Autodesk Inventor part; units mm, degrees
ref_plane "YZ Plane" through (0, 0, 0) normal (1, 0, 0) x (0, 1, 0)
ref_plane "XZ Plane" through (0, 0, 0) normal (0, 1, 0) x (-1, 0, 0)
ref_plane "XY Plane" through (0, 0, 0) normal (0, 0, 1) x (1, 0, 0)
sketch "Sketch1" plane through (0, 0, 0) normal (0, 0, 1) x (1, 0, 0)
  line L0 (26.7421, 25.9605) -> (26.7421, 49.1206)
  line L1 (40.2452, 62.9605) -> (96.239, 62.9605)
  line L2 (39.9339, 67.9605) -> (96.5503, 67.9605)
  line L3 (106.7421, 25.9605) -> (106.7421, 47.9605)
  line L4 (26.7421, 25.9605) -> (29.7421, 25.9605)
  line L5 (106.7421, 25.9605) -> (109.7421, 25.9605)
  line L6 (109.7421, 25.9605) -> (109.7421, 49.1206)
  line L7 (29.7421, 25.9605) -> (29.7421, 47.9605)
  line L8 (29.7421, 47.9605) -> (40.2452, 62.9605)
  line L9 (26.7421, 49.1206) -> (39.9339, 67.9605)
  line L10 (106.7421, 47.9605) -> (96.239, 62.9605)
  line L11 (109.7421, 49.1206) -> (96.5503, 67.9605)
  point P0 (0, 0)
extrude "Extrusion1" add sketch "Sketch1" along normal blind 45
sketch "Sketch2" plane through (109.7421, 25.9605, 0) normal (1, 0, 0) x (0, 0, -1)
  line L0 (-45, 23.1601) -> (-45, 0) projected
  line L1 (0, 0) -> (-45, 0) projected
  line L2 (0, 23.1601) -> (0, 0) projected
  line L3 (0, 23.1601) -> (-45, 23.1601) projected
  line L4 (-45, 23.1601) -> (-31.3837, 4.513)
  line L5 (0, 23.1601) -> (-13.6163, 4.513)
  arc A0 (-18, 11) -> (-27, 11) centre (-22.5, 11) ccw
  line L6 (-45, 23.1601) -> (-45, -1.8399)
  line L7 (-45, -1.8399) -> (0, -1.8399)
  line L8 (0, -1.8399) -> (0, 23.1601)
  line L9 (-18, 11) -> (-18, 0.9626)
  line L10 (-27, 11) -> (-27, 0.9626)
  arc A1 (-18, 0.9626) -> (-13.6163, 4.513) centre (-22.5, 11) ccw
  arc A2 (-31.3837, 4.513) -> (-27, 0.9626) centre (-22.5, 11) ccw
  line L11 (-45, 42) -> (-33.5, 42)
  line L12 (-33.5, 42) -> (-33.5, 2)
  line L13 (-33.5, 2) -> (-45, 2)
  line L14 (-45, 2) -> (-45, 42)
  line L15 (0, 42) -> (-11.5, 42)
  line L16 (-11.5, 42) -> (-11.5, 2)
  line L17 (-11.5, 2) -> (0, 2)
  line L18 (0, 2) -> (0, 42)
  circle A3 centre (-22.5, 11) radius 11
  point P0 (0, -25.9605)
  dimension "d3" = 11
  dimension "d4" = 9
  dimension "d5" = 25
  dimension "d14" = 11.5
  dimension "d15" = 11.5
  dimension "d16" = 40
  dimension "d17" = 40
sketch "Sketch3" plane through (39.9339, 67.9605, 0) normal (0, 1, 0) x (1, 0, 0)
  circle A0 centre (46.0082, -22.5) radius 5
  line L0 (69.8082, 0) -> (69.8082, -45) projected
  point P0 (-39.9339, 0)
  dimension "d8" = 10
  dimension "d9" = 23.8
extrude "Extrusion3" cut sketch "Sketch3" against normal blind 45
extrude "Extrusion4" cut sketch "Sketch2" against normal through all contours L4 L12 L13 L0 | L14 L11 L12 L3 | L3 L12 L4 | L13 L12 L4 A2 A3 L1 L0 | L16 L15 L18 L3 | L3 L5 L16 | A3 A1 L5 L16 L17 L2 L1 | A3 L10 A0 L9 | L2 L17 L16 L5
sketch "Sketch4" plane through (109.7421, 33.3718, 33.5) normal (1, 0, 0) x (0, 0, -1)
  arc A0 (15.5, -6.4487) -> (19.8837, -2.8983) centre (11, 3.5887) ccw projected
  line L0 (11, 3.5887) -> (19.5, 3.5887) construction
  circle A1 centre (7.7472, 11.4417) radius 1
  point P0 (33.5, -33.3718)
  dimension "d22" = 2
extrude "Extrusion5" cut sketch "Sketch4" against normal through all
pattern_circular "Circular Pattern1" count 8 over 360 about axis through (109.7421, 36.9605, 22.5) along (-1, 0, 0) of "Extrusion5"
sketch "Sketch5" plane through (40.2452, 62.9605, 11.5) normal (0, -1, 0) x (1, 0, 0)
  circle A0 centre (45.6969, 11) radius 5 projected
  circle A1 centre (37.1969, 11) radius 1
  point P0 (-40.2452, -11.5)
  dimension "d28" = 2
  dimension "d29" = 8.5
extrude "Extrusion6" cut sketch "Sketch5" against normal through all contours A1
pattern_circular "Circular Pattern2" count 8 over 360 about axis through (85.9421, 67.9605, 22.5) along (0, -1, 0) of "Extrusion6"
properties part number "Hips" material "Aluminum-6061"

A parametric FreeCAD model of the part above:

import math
import FreeCAD as App
import Part
import Sketcher
from FreeCAD import Vector
Q = App.Units.Quantity


def add_polygon(sketch, points):
    """Adds a closed chain of lines whose ends are joined by coincident constraints."""
    first, n = sketch.GeometryCount, len(points)
    for a, b in zip(points, points[1:] + points[:1]):
        sketch.addGeometry(Part.LineSegment(App.Vector(*a, 0), App.Vector(*b, 0)), False)
    for i in range(n):
        sketch.addConstraint(Sketcher.Constraint("Coincident", first + i, 2, first + (i + 1) % n, 1))

doc = App.newDocument("Part")
body = doc.addObject("PartDesign::Body", "Body")

sketch1 = body.newObject("Sketcher::SketchObject", "Sketch")
sketch1.AttachmentSupport = (doc.getObject("XY_Plane"), [""])
sketch1.MapMode = "FlatFace"
add_polygon(sketch1, [(26.7, 49.1), (26.7, 26), (29.7, 26), (29.7, 48), (40.2, 63), (96.2, 63), (106.7, 48), (106.7, 26), (109.7, 26), (109.7, 49.1), (96.6, 68), (39.9, 68)])
sketch1.addConstraint(Sketcher.Constraint("Vertical", 0))
sketch1.addConstraint(Sketcher.Constraint("Horizontal", 1))
sketch1.addConstraint(Sketcher.Constraint("Vertical", 2))
sketch1.addConstraint(Sketcher.Constraint("Horizontal", 4))
sketch1.addConstraint(Sketcher.Constraint("Vertical", 6))
sketch1.addConstraint(Sketcher.Constraint("Horizontal", 7))
sketch1.addConstraint(Sketcher.Constraint("Vertical", 8))
sketch1.addConstraint(Sketcher.Constraint("Horizontal", 10))
sketch1.addConstraint(Sketcher.Constraint("Parallel", 5, 9))
sketch1.addConstraint(Sketcher.Constraint("Parallel", 3, 11))
sketch1.addConstraint(Sketcher.Constraint("Horizontal", 2, 2, 5, 2))
sketch1.addConstraint(Sketcher.Constraint("Horizontal", 1, 2, 6, 2))
sketch1.addConstraint(Sketcher.Constraint("Horizontal", 8, 2, 11, 2))
sketch1.addConstraint(Sketcher.Constraint("Equal", 1, 7))
sketch1.addConstraint(Sketcher.Constraint("Equal", 3, 5))
sketch1.addConstraint(Sketcher.Constraint("DistanceX", 1, 1, 1, 2, Q("3 mm")))
sketch1.addConstraint(Sketcher.Constraint("DistanceY", 2, 1, 2, 2, Q("22 mm")))
sketch1.addConstraint(Sketcher.Constraint("Angle", 3, Q("55 deg")))
sketch1.addConstraint(Sketcher.Constraint("DistanceY", 2, 2, 3, 2, Q("15 mm")))
sketch1.addConstraint(Sketcher.Constraint("DistanceX", 2, 2, 5, 2, Q("77 mm")))
sketch1.addConstraint(Sketcher.Constraint("DistanceY", 4, 2, 9, 2, Q("5 mm")))
sketch1.addConstraint(Sketcher.Constraint("DistanceY", 0, 2, 0, 1, Q("23.16 mm")))
sketch1.addConstraint(Sketcher.Constraint("DistanceX", -1, 1, 0, 2, Q("26.742 mm")))
sketch1.addConstraint(Sketcher.Constraint("DistanceY", -1, 1, 0, 2, Q("25.9605 mm")))
pad1 = body.newObject("PartDesign::Pad", "Pad")
pad1.Profile = sketch1
pad1.Length = 45

sketch2 = body.newObject("Sketcher::SketchObject", "Sketch001")
sketch2.AttachmentSupport = (doc.getObject("XZ_Plane"), [""])
sketch2.MapMode = "FlatFace"
sketch2.AttachmentOffset = App.Placement(Vector(0, 0, -67.9605), App.Rotation())
sketch2.addGeometry(Part.Circle(Vector(86, 22, 0), Vector(0, 0, 1), 5), False)
sketch2.addConstraint(Sketcher.Constraint("Diameter", 0, Q("10 mm")))
sketch2.addConstraint(Sketcher.Constraint("DistanceY", -1, 1, 0, 3, Q("22.5 mm")))
sketch2.addConstraint(Sketcher.Constraint("DistanceX", -1, 1, 0, 3, Q("85.942 mm")))
pocket1 = body.newObject("PartDesign::Pocket", "Pocket")
pocket1.Profile = sketch2
pocket1.Length = 45
pocket1.Reversed = True

sketch3 = body.newObject("Sketcher::SketchObject", "Sketch002")
sketch3.AttachmentSupport = (doc.getObject("YZ_Plane"), [""])
sketch3.MapMode = "FlatFace"
sketch3.AttachmentOffset = App.Placement(Vector(0, 0, 109.7421), App.Rotation())
sketch3.addGeometry(Part.LineSegment(Vector(25.9605, 45, 0), Vector(25.9605, 0, 0)), False)
sketch3.addGeometry(Part.LineSegment(Vector(25.9605, 0, 0), Vector(67.9605, 0, 0)), False)
sketch3.addGeometry(Part.LineSegment(Vector(67.9605, 0, 0), Vector(67.9605, 11.5, 0)), False)
sketch3.addGeometry(Part.LineSegment(Vector(67.9605, 11.5, 0), Vector(33.371707, 11.5, 0)), False)
sketch3.addGeometry(Part.LineSegment(Vector(33.371707, 11.5, 0), Vector(30.4735, 13.6163, 0)), False)
sketch3.addGeometry(Part.ArcOfCircle(Part.Circle(Vector(36.961607, 22.500681, 0), Vector(0, 0, 1), 11.001262), math.radians(-155.851321), math.radians(-126.140001)), False)
sketch3.addGeometry(Part.LineSegment(Vector(26.9231, 18, 0), Vector(36.9605, 18, 0)), False)
sketch3.addGeometry(Part.ArcOfCircle(Part.Circle(Vector(36.9605, 22.5, 0), Vector(0, 0, 1), 4.5), math.radians(-90), math.radians(90)), False)
sketch3.addGeometry(Part.LineSegment(Vector(36.9605, 27, 0), Vector(26.9231, 27, 0)), False)
sketch3.addGeometry(Part.ArcOfCircle(Part.Circle(Vector(36.959604, 22.500942, 0), Vector(0, 0, 1), 10.99877), math.radians(126.136558), math.radians(155.854764)), False)
sketch3.addGeometry(Part.LineSegment(Vector(30.4735, 31.3837, 0), Vector(33.371707, 33.5, 0)), False)
sketch3.addGeometry(Part.LineSegment(Vector(33.371707, 33.5, 0), Vector(67.9605, 33.5, 0)), False)
sketch3.addGeometry(Part.LineSegment(Vector(67.9605, 33.5, 0), Vector(67.9605, 45, 0)), False)
sketch3.addGeometry(Part.LineSegment(Vector(67.9605, 45, 0), Vector(25.9605, 45, 0)), False)
sketch3.addConstraint(Sketcher.Constraint("Coincident", 0, 2, 1, 1))
sketch3.addConstraint(Sketcher.Constraint("Coincident", 1, 2, 2, 1))
sketch3.addConstraint(Sketcher.Constraint("Coincident", 2, 2, 3, 1))
sketch3.addConstraint(Sketcher.Constraint("Coincident", 3, 2, 4, 1))
sketch3.addConstraint(Sketcher.Constraint("Coincident", 4, 2, 5, 2))
sketch3.addConstraint(Sketcher.Constraint("Coincident", 5, 1, 6, 1))
sketch3.addConstraint(Sketcher.Constraint("Coincident", 6, 2, 7, 1))
sketch3.addConstraint(Sketcher.Constraint("Coincident", 7, 2, 8, 1))
sketch3.addConstraint(Sketcher.Constraint("Coincident", 8, 2, 9, 2))
sketch3.addConstraint(Sketcher.Constraint("Coincident", 9, 1, 10, 1))
sketch3.addConstraint(Sketcher.Constraint("Coincident", 10, 2, 11, 1))
sketch3.addConstraint(Sketcher.Constraint("Coincident", 11, 2, 12, 1))
sketch3.addConstraint(Sketcher.Constraint("Coincident", 12, 2, 13, 1))
sketch3.addConstraint(Sketcher.Constraint("Coincident", 13, 2, 0, 1))
sketch3.addConstraint(Sketcher.Constraint("Vertical", 0))
sketch3.addConstraint(Sketcher.Constraint("Horizontal", 1))
sketch3.addConstraint(Sketcher.Constraint("Vertical", 2))
sketch3.addConstraint(Sketcher.Constraint("Horizontal", 3))
sketch3.addConstraint(Sketcher.Constraint("Horizontal", 6))
sketch3.addConstraint(Sketcher.Constraint("Horizontal", 8))
sketch3.addConstraint(Sketcher.Constraint("Horizontal", 11))
sketch3.addConstraint(Sketcher.Constraint("Vertical", 12))
sketch3.addConstraint(Sketcher.Constraint("Horizontal", 13))
sketch3.addConstraint(Sketcher.Constraint("PointOnObject", 0, 2, -1))
sketch3.addConstraint(Sketcher.Constraint("Radius", 7, Q("4.5 mm")))
sketch3.addConstraint(Sketcher.Constraint("DistanceY", 2, 1, 2, 2, Q("11.5 mm")))
sketch3.addConstraint(Sketcher.Constraint("DistanceY", 12, 1, 12, 2, Q("11.5 mm")))
sketch3.addConstraint(Sketcher.Constraint("DistanceX", 0, 2, 7, 3, Q("11 mm")))
sketch3.addConstraint(Sketcher.Constraint("DistanceY", 2, 2, 7, 3, Q("11 mm")))
sketch3.addConstraint(Sketcher.Constraint("DistanceY", 7, 3, 11, 2, Q("11 mm")))
sketch3.addConstraint(Sketcher.Constraint("DistanceX", 13, 2, 7, 2, Q("11 mm")))
sketch3.addConstraint(Sketcher.Constraint("DistanceX", 1, 1, 1, 2, Q("42 mm")))
sketch3.addConstraint(Sketcher.Constraint("DistanceX", 13, 2, 13, 1, Q("42 mm")))
sketch3.addConstraint(Sketcher.Constraint("Radius", 5, Q("11.0013 mm")))
sketch3.addConstraint(Sketcher.Constraint("Radius", 9, Q("10.9988 mm")))
sketch3.addConstraint(Sketcher.Constraint("DistanceX", 3, 2, 5, 3, Q("3.59 mm")))
sketch3.addConstraint(Sketcher.Constraint("DistanceX", 10, 2, 5, 3, Q("3.59 mm")))
sketch3.addConstraint(Sketcher.Constraint("DistanceX", 3, 2, 3, 1, Q("34.5888 mm")))
sketch3.addConstraint(Sketcher.Constraint("DistanceX", 6, 1, 6, 2, Q("10.0374 mm")))
sketch3.addConstraint(Sketcher.Constraint("DistanceX", 8, 2, 8, 1, Q("10.0374 mm")))
sketch3.addConstraint(Sketcher.Constraint("DistanceY", -1, 1, 9, 3, Q("22.501 mm")))
sketch3.addConstraint(Sketcher.Constraint("DistanceX", -1, 1, 5, 1, Q("26.923 mm")))
sketch3.addConstraint(Sketcher.Constraint("DistanceX", -1, 1, 8, 2, Q("26.923 mm")))
sketch3.addConstraint(Sketcher.Constraint("DistanceX", 4, 2, 7, 3, Q("6.487 mm")))
sketch3.addConstraint(Sketcher.Constraint("DistanceX", 9, 1, 7, 2, Q("6.487 mm")))
pocket2 = body.newObject("PartDesign::Pocket", "Pocket001")
pocket2.Profile = sketch3
pocket2.Type = "ThroughAll"

sketch4 = body.newObject("Sketcher::SketchObject", "Sketch003")
sketch4.AttachmentSupport = (doc.getObject("YZ_Plane"), [""])
sketch4.MapMode = "FlatFace"
sketch4.AttachmentOffset = App.Placement(Vector(0, 0, 109.7421), App.Rotation())
sketch4.addGeometry(Part.Circle(Vector(44.8, 25.8, 0), Vector(0, 0, 1), 1), False)
sketch4.addConstraint(Sketcher.Constraint("Diameter", 0, Q("2 mm")))
sketch4.addConstraint(Sketcher.Constraint("DistanceX", -1, 1, 0, 3, Q("44.8135 mm")))
sketch4.addConstraint(Sketcher.Constraint("DistanceY", -1, 1, 0, 3, Q("25.7528 mm")))
pocket3 = body.newObject("PartDesign::Pocket", "Pocket002")
pocket3.Profile = sketch4
pocket3.Type = "ThroughAll"
doc.recompute()

datumline = body.newObject("PartDesign::Line", "DatumLine")
datumline.Placement = App.Placement(Vector(0, 36.9605, 22.5), App.Rotation(Vector(0, 0, 1), Vector(1, 0, 0)))
polarpattern = body.newObject("PartDesign::PolarPattern", "PolarPattern")
polarpattern.Originals = [pocket3]
polarpattern.Axis = (datumline, [""])
polarpattern.Angle = 360
polarpattern.Occurrences = 8
body.Tip = polarpattern

sketch5 = body.newObject("Sketcher::SketchObject", "Sketch004")
sketch5.AttachmentSupport = (doc.getObject("XZ_Plane"), [""])
sketch5.MapMode = "FlatFace"
sketch5.AttachmentOffset = App.Placement(Vector(0, 0, -62.9605), App.Rotation())
sketch5.addGeometry(Part.Circle(Vector(77.4, 22.5, 0), Vector(0, 0, 1), 1), False)
sketch5.addConstraint(Sketcher.Constraint("Diameter", 0, Q("2 mm")))
sketch5.addConstraint(Sketcher.Constraint("DistanceY", -1, 1, 0, 3, Q("22.5 mm")))
sketch5.addConstraint(Sketcher.Constraint("DistanceX", -1, 1, 0, 3, Q("77.442 mm")))
pocket4 = body.newObject("PartDesign::Pocket", "Pocket003")
pocket4.Profile = sketch5
pocket4.Type = "ThroughAll"
doc.recompute()

datumline2 = body.newObject("PartDesign::Line", "DatumLine001")
datumline2.Placement = App.Placement(Vector(85.9421, 0, 22.5), App.Rotation(Vector(0, 0, 1), Vector(0, 1, 0)))
polarpattern2 = body.newObject("PartDesign::PolarPattern", "PolarPattern001")
polarpattern2.Originals = [pocket4]
polarpattern2.Axis = (datumline2, [""])
polarpattern2.Angle = 360
polarpattern2.Occurrences = 8
body.Tip = polarpattern2

doc.recompute()
